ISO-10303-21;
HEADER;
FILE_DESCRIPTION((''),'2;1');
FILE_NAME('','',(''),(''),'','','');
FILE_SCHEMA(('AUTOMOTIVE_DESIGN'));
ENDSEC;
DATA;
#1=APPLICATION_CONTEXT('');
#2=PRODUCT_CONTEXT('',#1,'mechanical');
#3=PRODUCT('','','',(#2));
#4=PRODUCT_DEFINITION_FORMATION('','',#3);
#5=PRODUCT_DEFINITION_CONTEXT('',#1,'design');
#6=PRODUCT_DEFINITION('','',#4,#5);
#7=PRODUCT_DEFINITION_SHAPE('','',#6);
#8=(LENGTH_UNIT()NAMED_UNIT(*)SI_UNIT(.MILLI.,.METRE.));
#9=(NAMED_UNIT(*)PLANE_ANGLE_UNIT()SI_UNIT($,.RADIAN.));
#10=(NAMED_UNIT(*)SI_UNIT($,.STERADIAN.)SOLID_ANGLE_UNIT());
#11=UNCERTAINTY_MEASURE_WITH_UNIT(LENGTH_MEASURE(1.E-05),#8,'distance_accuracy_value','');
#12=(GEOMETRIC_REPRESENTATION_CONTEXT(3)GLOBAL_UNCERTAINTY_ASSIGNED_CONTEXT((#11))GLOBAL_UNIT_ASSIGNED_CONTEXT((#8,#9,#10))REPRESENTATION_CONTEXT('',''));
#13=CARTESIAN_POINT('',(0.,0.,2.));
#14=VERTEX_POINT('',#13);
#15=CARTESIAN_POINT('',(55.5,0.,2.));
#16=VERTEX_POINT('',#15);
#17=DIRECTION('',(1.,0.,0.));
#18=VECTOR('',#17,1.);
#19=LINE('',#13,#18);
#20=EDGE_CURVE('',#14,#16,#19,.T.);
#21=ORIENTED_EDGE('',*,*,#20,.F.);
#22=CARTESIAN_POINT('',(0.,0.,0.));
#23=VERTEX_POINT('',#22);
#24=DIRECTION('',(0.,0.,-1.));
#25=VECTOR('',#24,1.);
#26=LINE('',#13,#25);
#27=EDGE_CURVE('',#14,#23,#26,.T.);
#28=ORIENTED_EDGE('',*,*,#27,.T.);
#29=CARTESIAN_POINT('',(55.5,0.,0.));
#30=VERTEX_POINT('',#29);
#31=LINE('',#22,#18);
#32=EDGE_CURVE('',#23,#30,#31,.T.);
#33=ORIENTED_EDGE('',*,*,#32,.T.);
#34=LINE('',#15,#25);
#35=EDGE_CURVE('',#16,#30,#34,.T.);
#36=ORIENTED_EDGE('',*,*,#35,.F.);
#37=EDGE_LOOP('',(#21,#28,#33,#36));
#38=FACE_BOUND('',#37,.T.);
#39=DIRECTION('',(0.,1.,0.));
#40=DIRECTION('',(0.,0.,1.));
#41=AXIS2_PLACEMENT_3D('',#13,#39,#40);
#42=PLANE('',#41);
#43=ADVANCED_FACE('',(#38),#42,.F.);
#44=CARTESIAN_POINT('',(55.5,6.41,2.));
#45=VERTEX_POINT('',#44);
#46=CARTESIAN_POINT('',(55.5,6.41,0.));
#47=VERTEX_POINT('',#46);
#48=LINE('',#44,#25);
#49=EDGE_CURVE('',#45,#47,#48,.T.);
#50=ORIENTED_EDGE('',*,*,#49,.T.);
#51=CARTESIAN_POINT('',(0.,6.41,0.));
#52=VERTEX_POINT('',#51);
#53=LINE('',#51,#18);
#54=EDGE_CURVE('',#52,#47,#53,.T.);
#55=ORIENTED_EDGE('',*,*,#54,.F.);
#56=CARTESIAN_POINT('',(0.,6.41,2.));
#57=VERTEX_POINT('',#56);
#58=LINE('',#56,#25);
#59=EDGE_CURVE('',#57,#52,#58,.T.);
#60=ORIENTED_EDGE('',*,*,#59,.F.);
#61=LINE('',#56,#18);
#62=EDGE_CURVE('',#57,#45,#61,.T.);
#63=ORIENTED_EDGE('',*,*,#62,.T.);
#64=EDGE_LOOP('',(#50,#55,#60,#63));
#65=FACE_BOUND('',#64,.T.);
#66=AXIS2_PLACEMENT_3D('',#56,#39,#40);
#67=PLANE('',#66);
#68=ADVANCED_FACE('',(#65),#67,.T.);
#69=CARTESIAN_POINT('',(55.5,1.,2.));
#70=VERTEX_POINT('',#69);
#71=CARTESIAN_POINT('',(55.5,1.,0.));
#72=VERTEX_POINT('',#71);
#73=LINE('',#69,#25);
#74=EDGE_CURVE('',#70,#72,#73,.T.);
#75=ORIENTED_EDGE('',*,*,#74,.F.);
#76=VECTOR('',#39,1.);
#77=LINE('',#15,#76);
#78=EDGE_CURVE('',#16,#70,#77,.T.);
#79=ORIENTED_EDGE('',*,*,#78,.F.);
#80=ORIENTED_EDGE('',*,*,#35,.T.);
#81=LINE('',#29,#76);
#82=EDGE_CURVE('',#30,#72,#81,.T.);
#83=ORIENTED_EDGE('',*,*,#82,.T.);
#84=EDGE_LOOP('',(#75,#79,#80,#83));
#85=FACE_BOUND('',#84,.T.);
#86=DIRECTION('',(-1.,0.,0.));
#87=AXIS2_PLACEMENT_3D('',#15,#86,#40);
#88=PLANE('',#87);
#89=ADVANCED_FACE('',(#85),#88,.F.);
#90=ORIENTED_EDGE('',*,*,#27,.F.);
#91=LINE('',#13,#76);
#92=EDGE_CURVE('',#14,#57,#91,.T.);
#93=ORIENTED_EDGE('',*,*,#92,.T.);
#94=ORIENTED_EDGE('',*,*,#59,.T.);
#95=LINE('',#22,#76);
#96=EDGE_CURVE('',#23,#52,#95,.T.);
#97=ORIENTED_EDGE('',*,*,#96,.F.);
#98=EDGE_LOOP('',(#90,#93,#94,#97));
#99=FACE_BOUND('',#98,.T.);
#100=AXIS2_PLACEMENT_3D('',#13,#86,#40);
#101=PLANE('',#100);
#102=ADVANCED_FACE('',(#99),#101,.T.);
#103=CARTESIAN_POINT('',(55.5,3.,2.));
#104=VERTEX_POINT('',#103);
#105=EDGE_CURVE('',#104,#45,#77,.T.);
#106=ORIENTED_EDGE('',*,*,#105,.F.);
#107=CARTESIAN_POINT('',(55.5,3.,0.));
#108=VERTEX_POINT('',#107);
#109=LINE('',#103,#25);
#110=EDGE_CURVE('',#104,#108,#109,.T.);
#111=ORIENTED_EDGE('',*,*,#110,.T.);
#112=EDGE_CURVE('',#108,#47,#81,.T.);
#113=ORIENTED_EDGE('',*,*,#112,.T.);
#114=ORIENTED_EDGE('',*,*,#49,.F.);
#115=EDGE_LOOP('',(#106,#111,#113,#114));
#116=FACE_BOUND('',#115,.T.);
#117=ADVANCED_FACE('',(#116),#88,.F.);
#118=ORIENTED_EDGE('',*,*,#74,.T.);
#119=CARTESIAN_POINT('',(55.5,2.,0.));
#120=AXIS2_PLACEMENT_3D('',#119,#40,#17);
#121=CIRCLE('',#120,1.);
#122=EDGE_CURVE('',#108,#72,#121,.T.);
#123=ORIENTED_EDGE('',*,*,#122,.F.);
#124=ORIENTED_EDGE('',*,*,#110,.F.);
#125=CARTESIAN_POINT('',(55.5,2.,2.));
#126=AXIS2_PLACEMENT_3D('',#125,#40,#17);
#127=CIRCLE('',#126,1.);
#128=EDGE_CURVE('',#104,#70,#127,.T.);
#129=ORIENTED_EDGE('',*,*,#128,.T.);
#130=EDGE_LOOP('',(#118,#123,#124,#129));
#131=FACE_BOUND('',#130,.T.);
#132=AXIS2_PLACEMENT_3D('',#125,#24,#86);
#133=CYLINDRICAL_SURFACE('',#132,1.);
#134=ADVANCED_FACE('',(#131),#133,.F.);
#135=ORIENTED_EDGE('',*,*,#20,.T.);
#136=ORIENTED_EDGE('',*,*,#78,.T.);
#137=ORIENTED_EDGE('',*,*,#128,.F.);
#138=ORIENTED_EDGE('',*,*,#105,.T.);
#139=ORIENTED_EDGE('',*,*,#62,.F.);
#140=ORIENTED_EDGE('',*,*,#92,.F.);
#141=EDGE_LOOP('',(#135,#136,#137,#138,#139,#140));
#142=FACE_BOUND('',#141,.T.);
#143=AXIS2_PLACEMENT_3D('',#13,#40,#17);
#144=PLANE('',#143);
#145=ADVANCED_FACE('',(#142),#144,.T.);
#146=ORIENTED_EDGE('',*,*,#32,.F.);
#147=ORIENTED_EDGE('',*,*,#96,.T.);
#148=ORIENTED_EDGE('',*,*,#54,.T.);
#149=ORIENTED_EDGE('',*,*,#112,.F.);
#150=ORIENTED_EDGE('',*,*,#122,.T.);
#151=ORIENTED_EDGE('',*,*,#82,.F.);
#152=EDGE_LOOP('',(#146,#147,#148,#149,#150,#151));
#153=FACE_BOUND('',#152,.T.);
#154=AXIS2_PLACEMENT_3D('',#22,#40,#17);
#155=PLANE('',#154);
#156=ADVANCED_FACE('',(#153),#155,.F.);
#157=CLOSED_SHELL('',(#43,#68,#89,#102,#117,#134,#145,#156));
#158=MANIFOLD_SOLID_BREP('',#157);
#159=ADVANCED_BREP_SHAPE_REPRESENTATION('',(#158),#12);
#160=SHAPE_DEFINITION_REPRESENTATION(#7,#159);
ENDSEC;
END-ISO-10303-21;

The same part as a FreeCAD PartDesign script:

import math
import FreeCAD as App
import Part
import Sketcher
Q = App.Units.Quantity

doc = App.newDocument("Part")
body = doc.addObject("PartDesign::Body", "Body")

sketch1 = body.newObject("Sketcher::SketchObject", "Sketch")
sketch1.AttachmentSupport = (doc.getObject("XY_Plane"), [""])
sketch1.MapMode = "FlatFace"
sketch1.addGeometry([
    Part.LineSegment(App.Vector(0, 6.41, 0), App.Vector(0, 0, 0)),
    Part.LineSegment(App.Vector(0, 0, 0), App.Vector(55.5, 0, 0)),
    Part.LineSegment(App.Vector(55.5, 0, 0), App.Vector(55.5, 1, 0)),
    Part.ArcOfCircle(Part.Circle(App.Vector(55.5, 2, 0), App.Vector(0, 0, 1), 1), math.radians(90), math.radians(270)),
    Part.LineSegment(App.Vector(55.5, 3, 0), App.Vector(55.5, 6.41, 0)),
    Part.LineSegment(App.Vector(55.5, 6.41, 0), App.Vector(0, 6.41, 0)),
], False)
sketch1.addConstraint([
    Sketcher.Constraint("Coincident", 0, 2, 1, 1),
    Sketcher.Constraint("Coincident", 1, 2, 2, 1),
    Sketcher.Constraint("Coincident", 2, 2, 3, 2),
    Sketcher.Constraint("Coincident", 3, 1, 4, 1),
    Sketcher.Constraint("Coincident", 4, 2, 5, 1),
    Sketcher.Constraint("Coincident", 5, 2, 0, 1),
    Sketcher.Constraint("Vertical", 0),
    Sketcher.Constraint("Horizontal", 1),
    Sketcher.Constraint("Vertical", 2),
    Sketcher.Constraint("Vertical", 4),
    Sketcher.Constraint("Horizontal", 5),
    Sketcher.Constraint("Coincident", 0, 2, -1, 1),
    Sketcher.Constraint("Vertical", 3, 3, 1, 2),
    Sketcher.Constraint("Vertical", 2, 2, 3, 1),
    Sketcher.Constraint("Radius", 3, Q("1 mm")),
    Sketcher.Constraint("DistanceY", 2, 1, 2, 2, Q("1 mm")),
    Sketcher.Constraint("DistanceX", 1, 1, 1, 2, Q("55.5 mm")),
    Sketcher.Constraint("DistanceY", 0, 2, 0, 1, Q("6.41 mm")),
])
pad1 = body.newObject("PartDesign::Pad", "Pad")
pad1.Profile = sketch1
pad1.Length = 2

doc.recompute()
